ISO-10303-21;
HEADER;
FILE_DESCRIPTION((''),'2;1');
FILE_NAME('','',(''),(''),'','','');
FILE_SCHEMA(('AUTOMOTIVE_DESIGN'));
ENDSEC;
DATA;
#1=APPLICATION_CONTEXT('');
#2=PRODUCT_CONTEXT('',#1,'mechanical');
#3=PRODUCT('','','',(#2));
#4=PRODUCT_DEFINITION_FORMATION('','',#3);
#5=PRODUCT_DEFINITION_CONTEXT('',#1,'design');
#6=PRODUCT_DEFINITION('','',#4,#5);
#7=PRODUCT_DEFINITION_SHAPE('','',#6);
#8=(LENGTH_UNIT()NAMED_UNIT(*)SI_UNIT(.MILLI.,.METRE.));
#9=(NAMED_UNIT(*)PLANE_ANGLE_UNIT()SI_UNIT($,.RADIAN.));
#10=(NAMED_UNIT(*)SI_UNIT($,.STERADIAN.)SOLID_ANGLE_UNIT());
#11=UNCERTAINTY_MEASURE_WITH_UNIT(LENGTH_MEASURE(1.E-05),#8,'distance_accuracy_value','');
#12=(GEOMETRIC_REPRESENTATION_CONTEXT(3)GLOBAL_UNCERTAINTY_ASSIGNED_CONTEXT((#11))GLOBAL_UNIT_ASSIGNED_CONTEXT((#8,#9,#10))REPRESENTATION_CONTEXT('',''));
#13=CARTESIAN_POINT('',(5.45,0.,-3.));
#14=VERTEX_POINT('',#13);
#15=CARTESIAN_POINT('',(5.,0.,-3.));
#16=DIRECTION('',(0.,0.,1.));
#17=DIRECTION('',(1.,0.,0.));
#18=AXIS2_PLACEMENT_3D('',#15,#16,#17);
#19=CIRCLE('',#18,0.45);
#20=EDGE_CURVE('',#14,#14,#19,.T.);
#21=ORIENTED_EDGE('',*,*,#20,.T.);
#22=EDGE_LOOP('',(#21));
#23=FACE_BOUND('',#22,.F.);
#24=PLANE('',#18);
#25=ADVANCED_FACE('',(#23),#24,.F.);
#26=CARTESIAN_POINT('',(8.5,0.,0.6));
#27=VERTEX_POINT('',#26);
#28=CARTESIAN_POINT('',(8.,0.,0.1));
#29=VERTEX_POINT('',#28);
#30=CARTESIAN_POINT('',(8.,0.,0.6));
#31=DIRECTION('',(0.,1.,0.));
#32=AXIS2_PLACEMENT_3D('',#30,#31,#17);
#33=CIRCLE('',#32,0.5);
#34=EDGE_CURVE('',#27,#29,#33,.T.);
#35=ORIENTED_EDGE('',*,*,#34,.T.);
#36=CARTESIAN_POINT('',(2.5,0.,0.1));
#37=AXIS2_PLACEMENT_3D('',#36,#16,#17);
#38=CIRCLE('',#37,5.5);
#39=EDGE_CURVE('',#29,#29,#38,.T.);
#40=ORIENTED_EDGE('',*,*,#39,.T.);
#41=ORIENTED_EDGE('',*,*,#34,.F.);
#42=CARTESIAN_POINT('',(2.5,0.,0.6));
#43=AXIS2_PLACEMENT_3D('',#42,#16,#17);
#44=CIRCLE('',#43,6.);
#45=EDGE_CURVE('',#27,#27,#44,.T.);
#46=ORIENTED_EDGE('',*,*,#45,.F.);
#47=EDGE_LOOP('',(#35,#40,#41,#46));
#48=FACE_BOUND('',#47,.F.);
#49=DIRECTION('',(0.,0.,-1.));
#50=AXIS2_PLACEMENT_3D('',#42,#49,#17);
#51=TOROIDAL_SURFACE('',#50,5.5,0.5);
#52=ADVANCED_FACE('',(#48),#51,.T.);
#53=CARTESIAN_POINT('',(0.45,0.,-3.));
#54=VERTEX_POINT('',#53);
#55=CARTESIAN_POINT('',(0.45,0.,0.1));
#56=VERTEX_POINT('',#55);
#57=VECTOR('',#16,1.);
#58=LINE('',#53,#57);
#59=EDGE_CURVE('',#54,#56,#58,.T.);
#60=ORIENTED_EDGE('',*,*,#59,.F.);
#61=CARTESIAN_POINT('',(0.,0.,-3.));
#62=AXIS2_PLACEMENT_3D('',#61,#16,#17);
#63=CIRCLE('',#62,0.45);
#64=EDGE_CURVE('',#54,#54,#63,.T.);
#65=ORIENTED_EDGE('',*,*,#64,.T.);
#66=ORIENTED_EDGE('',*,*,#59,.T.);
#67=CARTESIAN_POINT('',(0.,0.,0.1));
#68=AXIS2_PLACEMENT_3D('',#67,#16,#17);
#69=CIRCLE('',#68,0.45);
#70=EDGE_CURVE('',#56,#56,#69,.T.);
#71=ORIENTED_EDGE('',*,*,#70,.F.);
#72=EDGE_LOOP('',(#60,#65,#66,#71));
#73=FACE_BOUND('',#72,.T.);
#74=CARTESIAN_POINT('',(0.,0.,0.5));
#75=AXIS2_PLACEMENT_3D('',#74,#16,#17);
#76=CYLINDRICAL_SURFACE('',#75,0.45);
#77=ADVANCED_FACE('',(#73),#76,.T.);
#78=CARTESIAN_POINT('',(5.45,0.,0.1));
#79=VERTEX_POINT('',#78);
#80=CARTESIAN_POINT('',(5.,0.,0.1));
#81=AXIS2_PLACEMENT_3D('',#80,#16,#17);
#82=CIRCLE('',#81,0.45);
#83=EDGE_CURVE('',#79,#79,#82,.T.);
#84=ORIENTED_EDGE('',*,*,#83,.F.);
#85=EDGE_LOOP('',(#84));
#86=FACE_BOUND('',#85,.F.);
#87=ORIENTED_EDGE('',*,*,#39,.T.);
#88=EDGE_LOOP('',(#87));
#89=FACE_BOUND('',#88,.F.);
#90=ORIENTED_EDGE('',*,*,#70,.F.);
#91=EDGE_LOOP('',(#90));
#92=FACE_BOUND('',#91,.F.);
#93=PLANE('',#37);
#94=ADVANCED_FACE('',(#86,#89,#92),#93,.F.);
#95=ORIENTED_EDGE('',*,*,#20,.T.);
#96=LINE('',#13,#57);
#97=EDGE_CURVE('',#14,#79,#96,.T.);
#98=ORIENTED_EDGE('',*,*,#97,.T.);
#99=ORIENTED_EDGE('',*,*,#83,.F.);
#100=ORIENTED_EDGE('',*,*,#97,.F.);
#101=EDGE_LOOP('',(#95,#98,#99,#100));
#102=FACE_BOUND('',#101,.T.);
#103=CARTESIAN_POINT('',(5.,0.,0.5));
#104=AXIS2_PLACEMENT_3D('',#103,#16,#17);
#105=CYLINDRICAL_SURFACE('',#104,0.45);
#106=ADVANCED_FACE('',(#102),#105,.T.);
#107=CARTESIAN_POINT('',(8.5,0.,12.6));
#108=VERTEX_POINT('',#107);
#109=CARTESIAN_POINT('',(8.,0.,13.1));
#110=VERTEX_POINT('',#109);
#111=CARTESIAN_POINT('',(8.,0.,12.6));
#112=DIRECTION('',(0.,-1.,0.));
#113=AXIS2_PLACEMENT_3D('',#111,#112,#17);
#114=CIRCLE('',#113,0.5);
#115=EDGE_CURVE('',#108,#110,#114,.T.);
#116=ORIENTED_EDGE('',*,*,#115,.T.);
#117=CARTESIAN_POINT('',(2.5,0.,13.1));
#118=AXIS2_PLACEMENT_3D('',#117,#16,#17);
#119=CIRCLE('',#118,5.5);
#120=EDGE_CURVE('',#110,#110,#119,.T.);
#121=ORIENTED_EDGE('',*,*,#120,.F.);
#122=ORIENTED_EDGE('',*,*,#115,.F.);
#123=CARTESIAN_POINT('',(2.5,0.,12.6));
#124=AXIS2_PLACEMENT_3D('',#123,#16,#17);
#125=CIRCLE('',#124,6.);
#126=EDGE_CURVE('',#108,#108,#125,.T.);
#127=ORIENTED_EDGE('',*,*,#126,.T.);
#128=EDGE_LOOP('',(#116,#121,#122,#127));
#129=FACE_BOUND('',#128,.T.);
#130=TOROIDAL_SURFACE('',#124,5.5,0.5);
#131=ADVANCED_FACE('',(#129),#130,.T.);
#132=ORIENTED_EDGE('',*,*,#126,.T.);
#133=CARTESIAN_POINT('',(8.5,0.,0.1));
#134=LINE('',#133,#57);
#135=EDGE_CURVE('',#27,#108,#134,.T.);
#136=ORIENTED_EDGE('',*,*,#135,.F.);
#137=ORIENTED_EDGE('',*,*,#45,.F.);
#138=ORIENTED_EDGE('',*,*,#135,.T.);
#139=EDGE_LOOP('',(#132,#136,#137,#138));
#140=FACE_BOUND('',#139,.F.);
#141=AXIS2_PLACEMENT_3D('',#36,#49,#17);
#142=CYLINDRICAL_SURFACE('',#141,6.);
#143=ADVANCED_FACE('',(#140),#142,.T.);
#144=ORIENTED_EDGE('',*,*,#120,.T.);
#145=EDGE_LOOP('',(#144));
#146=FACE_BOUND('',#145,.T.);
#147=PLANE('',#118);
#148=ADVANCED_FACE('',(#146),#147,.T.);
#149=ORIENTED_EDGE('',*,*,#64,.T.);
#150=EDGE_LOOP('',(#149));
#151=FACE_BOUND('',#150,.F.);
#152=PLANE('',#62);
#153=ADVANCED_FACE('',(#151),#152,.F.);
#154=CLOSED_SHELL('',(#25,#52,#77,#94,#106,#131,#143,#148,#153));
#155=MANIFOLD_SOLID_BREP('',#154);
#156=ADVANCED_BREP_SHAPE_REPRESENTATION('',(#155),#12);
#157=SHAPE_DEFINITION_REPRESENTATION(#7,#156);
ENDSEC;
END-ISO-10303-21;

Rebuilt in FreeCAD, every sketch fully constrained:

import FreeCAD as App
import Part
import Sketcher

V = App.Vector


def edges_at(feature, points):
    """Names of the edges that pass closest to the given points."""
    edges = feature.Shape.Edges
    near = lambda p: min(range(len(edges)), key=lambda i: edges[i].distToShape(Part.Vertex(*p))[0])
    return sorted({f"Edge{near(p) + 1}" for p in points})

doc = App.newDocument("Part")
params = doc.addObject("Spreadsheet::Sheet", "Params")
for row, (alias, value) in enumerate([
    ("sketch1_diameter", "0.9 mm"),
    ("pad1_length", "6.5 mm"),
    ("pad1_length2", "3.5 mm"),
    ("sketch2_diameter", "12 mm"),
    ("pad2_length", "13 mm"),
    ("fillet_radius", "0.5 mm"),
], start=1):
    params.set(f"A{row}", alias)
    params.set(f"B{row}", "=" + value)
    params.setAlias(f"B{row}", alias)

body = doc.addObject("PartDesign::Body", "Body")
body.AllowCompound = True

# Sketch on XY plane
sketch1 = body.newObject("Sketcher::SketchObject", "Sketch")
sketch1.AttachmentSupport = (doc.getObject("XY_Plane"), [""])
sketch1.MapMode = "FlatFace"
sketch1.AttachmentOffset = App.Placement(V(0, 0, 0.5), App.Rotation())
sketch1.addGeometry(Part.Circle(V(0, 0, 0), V(0, 0, 1), 0.45), False)
sketch1.addGeometry(Part.Circle(V(5, 0, 0), V(0, 0, 1), 0.45), False)
sketch1.addConstraint(Sketcher.Constraint("Coincident", 0, 3, -1, 1))
sketch1.addConstraint(Sketcher.Constraint("Equal", 0, 1))
sketch1.addConstraint(Sketcher.Constraint("PointOnObject", 1, 3, -1))
sketch1.addConstraint(Sketcher.Constraint("Diameter", 0, 0.9))
sketch1.addConstraint(Sketcher.Constraint("DistanceX", -1, 1, 1, 3, 5.0))
sketch1.setExpression("Constraints[3]", "Params.sketch1_diameter")
pad1 = body.newObject("PartDesign::Pad", "Pad")
pad1.Profile = sketch1
pad1.Type = "TwoLengths"
pad1.setExpression("Length", "Params.pad1_length")
pad1.setExpression("Length2", "Params.pad1_length2")
body2 = doc.addObject("PartDesign::Body", "Body001")

# Sketch on XY plane
sketch2 = body2.newObject("Sketcher::SketchObject", "Sketch001")
sketch2.AttachmentSupport = (doc.getObject("XY_Plane001"), [""])
sketch2.MapMode = "FlatFace"
sketch2.AttachmentOffset = App.Placement(V(0, 0, 0.1), App.Rotation())
sketch2.addGeometry(Part.Circle(V(2, 0, 0), V(0, 0, 1), 6), False)
sketch2.addConstraint(Sketcher.Constraint("PointOnObject", 0, 3, -1))
sketch2.addConstraint(Sketcher.Constraint("Diameter", 0, 12.0))
sketch2.addConstraint(Sketcher.Constraint("DistanceX", -1, 1, 0, 3, 2.5))
sketch2.setExpression("Constraints[1]", "Params.sketch2_diameter")
pad2 = body2.newObject("PartDesign::Pad", "Pad001")
pad2.Profile = sketch2
pad2.setExpression("Length", "Params.pad2_length")
doc.recompute()

fillet = body2.newObject("PartDesign::Fillet", "Fillet")
fillet.Base = (pad2, edges_at(pad2, [(-3.5, 0, 0.1), (-3.5, 0, 13.1)]))
fillet.setExpression("Radius", "Params.fillet_radius")
doc.recompute()

boolean = body2.newObject("PartDesign::Boolean", "Boolean")
boolean.Type = "Fuse"
boolean.addObjects([body])

doc.recompute()
